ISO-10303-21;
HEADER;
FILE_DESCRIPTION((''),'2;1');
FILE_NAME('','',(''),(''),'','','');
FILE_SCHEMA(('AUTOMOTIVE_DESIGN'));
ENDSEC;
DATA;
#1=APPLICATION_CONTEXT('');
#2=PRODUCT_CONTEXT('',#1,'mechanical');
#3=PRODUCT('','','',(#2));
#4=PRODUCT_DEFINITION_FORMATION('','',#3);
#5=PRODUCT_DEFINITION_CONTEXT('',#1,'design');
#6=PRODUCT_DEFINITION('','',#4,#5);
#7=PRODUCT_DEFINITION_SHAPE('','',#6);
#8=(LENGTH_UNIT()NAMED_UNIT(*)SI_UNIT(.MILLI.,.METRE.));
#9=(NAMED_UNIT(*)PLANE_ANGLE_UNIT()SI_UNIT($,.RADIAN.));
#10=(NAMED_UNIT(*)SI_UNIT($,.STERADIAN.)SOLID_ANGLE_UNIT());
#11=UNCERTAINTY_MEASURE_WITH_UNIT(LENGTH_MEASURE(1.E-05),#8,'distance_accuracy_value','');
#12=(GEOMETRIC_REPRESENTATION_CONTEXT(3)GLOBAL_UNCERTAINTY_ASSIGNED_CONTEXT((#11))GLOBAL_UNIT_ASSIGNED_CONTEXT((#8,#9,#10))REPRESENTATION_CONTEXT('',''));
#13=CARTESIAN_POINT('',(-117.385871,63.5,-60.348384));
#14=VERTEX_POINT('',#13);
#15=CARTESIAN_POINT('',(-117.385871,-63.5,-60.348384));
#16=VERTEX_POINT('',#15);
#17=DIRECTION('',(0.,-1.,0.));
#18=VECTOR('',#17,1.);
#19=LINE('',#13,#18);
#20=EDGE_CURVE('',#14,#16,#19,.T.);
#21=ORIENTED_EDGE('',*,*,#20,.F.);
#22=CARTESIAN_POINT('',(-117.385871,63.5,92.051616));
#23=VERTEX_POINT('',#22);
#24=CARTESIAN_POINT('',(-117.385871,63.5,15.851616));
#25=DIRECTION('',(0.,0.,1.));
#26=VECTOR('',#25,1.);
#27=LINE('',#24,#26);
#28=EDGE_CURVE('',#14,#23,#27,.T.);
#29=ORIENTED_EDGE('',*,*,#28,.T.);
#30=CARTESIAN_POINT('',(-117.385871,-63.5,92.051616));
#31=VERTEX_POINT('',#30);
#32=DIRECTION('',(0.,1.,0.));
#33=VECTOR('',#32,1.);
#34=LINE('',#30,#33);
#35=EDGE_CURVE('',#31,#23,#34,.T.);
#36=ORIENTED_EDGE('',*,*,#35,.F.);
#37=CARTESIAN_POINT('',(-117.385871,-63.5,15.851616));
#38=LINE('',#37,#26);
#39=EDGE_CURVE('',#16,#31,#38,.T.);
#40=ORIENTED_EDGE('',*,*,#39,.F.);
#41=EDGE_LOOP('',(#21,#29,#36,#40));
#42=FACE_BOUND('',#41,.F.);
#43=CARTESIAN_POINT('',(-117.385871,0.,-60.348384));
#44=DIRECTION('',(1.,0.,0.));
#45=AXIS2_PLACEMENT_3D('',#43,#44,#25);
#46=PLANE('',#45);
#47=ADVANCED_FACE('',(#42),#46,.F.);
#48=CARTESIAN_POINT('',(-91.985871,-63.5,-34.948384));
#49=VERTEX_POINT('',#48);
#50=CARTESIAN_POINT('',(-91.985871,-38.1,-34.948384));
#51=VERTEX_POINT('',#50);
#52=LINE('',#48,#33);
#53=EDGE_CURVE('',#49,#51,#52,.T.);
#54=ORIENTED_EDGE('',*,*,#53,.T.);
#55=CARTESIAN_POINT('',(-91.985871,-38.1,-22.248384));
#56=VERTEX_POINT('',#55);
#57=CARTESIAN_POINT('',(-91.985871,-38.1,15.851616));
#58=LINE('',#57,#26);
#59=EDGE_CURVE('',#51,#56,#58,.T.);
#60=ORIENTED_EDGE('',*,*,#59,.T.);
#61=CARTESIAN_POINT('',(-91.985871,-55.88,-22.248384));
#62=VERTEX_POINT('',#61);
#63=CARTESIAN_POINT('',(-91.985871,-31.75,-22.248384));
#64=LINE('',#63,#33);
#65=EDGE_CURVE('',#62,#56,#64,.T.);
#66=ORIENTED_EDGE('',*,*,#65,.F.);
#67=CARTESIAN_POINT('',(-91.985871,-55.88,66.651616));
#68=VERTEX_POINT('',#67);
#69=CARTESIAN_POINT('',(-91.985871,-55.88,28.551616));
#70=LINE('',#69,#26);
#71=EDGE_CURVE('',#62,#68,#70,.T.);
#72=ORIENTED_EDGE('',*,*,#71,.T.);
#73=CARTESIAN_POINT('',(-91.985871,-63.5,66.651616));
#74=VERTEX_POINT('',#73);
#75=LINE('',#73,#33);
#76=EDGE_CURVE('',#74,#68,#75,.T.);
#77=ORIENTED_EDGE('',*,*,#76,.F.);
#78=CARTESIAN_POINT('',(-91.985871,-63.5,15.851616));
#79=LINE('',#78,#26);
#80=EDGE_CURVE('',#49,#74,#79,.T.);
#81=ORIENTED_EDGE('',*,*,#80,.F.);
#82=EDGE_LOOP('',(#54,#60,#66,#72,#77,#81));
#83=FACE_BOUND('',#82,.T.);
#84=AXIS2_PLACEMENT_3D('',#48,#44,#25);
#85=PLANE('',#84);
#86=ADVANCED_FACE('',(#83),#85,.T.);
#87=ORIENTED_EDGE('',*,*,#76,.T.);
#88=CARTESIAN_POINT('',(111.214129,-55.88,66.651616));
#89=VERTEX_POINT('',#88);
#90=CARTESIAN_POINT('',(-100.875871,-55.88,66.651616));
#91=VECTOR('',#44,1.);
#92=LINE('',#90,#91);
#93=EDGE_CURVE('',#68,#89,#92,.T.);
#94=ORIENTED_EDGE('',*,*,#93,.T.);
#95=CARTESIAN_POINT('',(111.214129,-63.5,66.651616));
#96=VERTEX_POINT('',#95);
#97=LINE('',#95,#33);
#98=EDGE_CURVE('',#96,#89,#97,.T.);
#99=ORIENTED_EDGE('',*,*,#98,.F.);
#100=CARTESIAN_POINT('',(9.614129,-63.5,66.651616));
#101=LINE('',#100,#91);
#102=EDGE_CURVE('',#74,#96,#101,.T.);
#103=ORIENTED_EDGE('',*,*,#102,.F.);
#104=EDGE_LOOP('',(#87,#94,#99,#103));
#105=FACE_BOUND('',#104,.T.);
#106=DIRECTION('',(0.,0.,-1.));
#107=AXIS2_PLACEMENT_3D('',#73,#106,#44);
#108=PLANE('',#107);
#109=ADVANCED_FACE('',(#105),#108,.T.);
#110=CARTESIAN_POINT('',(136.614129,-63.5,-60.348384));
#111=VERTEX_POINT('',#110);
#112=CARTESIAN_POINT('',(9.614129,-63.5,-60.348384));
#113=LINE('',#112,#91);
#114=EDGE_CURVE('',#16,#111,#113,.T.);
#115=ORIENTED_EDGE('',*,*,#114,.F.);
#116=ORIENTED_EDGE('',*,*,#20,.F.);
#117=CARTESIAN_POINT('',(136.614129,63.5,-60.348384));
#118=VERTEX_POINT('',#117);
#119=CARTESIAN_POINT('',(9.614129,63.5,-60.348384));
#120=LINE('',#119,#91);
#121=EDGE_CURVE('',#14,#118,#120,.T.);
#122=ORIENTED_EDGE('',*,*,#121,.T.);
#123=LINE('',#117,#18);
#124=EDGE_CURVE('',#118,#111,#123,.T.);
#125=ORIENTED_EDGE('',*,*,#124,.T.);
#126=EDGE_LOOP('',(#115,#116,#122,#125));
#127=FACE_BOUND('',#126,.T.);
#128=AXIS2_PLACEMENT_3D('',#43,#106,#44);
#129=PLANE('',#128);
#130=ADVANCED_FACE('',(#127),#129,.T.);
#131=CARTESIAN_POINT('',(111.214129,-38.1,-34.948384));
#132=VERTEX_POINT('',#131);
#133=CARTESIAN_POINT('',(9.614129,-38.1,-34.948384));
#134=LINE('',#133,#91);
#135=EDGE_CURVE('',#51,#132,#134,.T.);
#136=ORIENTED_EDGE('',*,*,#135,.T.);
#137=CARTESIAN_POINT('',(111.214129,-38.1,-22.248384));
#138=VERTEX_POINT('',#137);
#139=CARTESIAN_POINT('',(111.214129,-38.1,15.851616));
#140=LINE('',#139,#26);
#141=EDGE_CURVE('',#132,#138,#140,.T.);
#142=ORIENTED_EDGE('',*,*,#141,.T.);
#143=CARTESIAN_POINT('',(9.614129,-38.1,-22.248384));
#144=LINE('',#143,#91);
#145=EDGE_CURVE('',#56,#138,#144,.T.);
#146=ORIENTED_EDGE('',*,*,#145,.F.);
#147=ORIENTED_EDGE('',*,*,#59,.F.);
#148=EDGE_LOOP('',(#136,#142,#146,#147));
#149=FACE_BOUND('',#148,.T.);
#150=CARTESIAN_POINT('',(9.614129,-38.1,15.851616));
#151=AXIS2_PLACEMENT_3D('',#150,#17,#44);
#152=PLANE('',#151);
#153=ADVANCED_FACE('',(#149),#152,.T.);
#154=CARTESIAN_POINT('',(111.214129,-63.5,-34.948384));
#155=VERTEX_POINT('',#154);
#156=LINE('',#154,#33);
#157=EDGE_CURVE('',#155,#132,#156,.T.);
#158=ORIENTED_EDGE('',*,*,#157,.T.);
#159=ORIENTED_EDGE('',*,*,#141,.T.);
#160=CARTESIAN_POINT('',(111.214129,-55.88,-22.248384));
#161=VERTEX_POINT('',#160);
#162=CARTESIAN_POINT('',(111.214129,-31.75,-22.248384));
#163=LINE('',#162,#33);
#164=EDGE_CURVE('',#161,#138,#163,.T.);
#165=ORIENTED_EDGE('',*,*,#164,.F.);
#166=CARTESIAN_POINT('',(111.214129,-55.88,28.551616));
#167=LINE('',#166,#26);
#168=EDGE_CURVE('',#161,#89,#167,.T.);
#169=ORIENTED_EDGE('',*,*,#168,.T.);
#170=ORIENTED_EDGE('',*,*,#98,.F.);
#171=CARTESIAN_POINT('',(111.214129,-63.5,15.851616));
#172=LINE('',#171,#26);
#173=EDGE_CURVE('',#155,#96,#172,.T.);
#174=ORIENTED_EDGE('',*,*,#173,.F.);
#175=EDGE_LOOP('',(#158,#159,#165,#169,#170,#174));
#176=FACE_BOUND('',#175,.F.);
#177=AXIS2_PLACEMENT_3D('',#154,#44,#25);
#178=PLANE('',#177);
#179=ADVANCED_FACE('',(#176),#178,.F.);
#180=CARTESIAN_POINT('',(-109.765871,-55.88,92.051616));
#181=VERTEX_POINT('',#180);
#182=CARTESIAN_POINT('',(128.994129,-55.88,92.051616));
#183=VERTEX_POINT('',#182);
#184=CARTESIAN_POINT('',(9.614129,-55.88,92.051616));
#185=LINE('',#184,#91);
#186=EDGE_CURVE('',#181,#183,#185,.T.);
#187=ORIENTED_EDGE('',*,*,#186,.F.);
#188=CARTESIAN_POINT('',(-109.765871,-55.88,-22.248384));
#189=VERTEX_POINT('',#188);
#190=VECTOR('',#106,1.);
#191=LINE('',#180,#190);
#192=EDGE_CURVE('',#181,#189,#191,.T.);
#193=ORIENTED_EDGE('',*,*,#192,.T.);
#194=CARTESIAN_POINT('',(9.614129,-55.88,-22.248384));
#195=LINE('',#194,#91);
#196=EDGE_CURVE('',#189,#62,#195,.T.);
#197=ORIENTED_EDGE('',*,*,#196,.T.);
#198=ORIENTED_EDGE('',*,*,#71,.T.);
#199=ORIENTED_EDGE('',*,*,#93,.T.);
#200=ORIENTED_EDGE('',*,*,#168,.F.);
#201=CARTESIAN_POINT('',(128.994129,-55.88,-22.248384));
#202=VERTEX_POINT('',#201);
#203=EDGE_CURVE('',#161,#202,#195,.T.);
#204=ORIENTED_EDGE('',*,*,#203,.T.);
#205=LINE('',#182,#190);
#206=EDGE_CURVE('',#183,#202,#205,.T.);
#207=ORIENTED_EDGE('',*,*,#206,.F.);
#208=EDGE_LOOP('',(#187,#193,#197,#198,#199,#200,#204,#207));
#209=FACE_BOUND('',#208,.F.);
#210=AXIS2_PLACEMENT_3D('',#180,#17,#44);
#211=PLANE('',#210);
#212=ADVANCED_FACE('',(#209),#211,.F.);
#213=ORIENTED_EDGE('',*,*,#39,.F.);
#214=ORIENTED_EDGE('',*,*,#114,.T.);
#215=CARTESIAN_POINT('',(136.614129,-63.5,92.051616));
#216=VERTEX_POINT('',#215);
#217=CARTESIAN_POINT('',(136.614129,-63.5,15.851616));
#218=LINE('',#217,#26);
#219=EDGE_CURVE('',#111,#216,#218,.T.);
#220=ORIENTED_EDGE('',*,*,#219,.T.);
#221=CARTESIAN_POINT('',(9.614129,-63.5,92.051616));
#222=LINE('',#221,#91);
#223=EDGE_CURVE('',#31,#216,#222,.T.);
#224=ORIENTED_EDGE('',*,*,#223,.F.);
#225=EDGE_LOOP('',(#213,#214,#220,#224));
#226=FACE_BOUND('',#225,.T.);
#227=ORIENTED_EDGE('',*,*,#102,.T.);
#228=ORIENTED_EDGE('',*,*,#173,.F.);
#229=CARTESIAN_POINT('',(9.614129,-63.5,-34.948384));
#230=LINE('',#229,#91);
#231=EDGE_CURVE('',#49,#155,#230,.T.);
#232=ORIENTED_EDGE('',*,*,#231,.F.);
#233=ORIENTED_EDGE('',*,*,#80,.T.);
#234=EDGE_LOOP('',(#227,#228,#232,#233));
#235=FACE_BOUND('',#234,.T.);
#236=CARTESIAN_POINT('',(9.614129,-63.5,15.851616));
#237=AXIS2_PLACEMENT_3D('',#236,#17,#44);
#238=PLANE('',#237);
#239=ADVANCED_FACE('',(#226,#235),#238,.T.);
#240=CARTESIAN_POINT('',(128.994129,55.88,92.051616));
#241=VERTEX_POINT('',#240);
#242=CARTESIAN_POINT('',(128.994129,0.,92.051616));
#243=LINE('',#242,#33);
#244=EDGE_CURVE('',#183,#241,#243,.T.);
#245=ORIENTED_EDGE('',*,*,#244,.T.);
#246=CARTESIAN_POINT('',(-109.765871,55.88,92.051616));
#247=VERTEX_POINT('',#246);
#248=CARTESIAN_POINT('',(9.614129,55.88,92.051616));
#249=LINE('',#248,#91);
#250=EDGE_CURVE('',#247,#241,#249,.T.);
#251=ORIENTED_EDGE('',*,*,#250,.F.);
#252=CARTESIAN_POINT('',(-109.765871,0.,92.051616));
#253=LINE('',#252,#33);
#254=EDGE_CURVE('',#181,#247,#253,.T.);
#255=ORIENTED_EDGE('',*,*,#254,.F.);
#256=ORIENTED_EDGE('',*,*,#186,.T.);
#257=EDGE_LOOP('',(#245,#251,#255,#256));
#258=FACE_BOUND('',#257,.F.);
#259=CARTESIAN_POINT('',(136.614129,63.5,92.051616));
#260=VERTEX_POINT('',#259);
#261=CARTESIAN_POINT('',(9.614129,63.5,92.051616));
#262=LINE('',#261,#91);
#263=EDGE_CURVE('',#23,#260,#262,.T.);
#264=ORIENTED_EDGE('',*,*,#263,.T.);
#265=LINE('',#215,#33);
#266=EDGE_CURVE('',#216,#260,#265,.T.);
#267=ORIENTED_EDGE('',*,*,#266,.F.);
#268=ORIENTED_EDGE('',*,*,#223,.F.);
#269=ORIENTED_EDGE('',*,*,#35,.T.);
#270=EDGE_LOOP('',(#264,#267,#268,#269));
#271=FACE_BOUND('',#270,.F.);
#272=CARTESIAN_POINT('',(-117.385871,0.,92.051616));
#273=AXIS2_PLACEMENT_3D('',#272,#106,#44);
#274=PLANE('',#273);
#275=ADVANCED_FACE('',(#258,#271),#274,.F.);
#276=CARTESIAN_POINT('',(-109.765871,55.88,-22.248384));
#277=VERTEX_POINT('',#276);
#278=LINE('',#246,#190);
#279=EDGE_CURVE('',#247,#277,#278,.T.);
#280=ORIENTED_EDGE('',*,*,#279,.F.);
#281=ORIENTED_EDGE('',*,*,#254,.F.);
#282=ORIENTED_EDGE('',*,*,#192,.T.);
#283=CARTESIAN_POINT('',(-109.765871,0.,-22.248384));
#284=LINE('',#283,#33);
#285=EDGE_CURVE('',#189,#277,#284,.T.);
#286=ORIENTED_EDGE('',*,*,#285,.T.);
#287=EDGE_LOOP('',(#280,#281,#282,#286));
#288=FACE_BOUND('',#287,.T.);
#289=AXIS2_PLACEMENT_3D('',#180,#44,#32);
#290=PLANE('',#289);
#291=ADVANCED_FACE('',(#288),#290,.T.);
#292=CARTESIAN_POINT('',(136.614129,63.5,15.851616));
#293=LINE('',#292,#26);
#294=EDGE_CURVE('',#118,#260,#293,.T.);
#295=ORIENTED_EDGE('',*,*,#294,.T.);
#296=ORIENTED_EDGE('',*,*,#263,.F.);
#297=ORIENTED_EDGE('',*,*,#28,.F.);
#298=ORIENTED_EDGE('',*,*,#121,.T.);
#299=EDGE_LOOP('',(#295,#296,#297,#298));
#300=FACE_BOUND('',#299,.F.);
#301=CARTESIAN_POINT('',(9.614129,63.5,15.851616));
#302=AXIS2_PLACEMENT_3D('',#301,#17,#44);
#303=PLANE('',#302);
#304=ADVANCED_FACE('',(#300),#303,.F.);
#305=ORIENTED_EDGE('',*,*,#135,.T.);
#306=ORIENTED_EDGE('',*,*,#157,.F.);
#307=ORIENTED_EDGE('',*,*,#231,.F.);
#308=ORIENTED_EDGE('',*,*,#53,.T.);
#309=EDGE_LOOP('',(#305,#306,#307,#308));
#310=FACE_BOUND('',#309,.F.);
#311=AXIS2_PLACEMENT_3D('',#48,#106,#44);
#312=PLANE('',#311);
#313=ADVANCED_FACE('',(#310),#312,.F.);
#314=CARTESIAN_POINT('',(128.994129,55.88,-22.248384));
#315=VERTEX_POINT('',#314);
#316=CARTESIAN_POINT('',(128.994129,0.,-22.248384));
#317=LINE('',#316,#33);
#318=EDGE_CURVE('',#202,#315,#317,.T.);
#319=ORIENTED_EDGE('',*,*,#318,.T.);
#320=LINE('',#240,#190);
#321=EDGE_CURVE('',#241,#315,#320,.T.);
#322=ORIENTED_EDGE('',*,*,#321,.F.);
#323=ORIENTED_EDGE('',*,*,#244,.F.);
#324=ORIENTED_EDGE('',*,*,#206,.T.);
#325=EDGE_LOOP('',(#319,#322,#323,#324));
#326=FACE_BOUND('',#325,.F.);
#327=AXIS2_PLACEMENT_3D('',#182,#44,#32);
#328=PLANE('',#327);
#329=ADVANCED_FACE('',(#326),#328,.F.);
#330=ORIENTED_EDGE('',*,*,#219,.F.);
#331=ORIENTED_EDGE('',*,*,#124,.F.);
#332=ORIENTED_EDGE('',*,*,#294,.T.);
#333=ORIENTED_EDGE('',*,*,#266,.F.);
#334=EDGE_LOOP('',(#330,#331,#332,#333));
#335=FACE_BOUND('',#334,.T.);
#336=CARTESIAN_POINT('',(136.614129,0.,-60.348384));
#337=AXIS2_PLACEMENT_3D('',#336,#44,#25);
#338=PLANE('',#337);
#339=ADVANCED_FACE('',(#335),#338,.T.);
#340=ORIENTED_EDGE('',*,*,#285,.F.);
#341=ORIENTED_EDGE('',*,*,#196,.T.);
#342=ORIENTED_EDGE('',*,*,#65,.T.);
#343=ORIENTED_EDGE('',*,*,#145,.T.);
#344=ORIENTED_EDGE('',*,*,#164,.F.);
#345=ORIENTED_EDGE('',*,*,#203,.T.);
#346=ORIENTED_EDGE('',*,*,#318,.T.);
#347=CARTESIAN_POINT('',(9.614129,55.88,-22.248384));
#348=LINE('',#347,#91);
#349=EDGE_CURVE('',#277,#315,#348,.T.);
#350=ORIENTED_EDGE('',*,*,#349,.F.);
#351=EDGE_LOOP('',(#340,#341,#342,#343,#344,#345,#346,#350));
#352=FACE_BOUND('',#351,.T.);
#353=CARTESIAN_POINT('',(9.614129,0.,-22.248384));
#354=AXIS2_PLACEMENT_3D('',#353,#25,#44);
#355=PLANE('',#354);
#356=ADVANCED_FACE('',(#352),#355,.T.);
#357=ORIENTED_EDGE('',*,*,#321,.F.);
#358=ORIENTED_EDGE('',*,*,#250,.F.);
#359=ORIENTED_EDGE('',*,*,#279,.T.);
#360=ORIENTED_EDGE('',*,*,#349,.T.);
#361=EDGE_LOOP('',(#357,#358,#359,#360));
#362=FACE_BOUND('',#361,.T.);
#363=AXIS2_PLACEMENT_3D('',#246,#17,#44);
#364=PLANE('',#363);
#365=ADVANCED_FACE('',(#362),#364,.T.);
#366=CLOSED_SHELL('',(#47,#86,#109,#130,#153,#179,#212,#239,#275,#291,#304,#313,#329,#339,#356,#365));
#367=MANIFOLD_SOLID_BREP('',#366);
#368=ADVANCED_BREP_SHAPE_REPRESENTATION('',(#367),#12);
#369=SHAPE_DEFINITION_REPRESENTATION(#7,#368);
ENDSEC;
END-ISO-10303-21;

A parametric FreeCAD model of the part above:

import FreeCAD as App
import Part
import Sketcher

V = App.Vector
Q = App.Units.Quantity


def add_polygon(sketch, points):
    """Adds a closed chain of lines whose ends are joined by coincident constraints."""
    first, n = sketch.GeometryCount, len(points)
    for a, b in zip(points, points[1:] + points[:1]):
        sketch.addGeometry(Part.LineSegment(App.Vector(*a, 0), App.Vector(*b, 0)), False)
    for i in range(n):
        sketch.addConstraint(Sketcher.Constraint("Coincident", first + i, 2, first + (i + 1) % n, 1))

doc = App.newDocument("Part")
params = doc.addObject("Spreadsheet::Sheet", "Params")
for row, (alias, value) in enumerate([
    ("sketch1_width", "10 in"),
    ("sketch1_height", "6 in"),
    ("pad1_length", "5 in"),
    ("sketch2_width", "9.4 in"),
    ("sketch2_height", "4.4 in"),
    ("pocket1_length", "4.5 in"),
    ("sketch3_width", "8 in"),
    ("sketch3_height", "4 in"),
    ("pocket2_length", "1 in"),
], start=1):
    params.set(f"A{row}", alias)
    params.set(f"B{row}", "=" + value)
    params.setAlias(f"B{row}", alias)

body = doc.addObject("PartDesign::Body", "Body")

# Sketch on XZ plane
sketch1 = body.newObject("Sketcher::SketchObject", "Sketch")
sketch1.AttachmentSupport = (doc.getObject("XZ_Plane"), [""])
sketch1.MapMode = "FlatFace"
add_polygon(sketch1, [(-117, 92), (-117, -60), (137, -60), (137, 92)])  # lines 0-3
sketch1.addConstraint(Sketcher.Constraint("Vertical", 0))
sketch1.addConstraint(Sketcher.Constraint("Horizontal", 1))
sketch1.addConstraint(Sketcher.Constraint("Vertical", 2))
sketch1.addConstraint(Sketcher.Constraint("Horizontal", 3))
sketch1.addConstraint(Sketcher.Constraint("DistanceX", 1, 1, 1, 2, Q("10 in")))
sketch1.addConstraint(Sketcher.Constraint("DistanceY", 0, 2, 0, 1, Q("6 in")))
sketch1.addConstraint(Sketcher.Constraint("DistanceX", 0, 2, -1, 1, 117.385871))
sketch1.addConstraint(Sketcher.Constraint("DistanceY", 0, 2, -1, 1, 60.348384))
sketch1.setExpression("Constraints[8]", "Params.sketch1_width")
sketch1.setExpression("Constraints[9]", "Params.sketch1_height")
pad1 = body.newObject("PartDesign::Pad", "Pad")
pad1.Profile = sketch1
pad1.setExpression("Length", "Params.pad1_length")
pad1.Midplane = True

# Sketch on XY plane
sketch2 = body.newObject("Sketcher::SketchObject", "Sketch001")
sketch2.AttachmentSupport = (doc.getObject("XY_Plane"), [""])
sketch2.MapMode = "FlatFace"
sketch2.AttachmentOffset = App.Placement(V(0, 0, 92.051616), App.Rotation())
add_polygon(sketch2, [(-110, 56), (-110, -56), (129, -56), (129, 56)])  # lines 0-3
sketch2.addConstraint(Sketcher.Constraint("Vertical", 0))
sketch2.addConstraint(Sketcher.Constraint("Horizontal", 1))
sketch2.addConstraint(Sketcher.Constraint("Vertical", 2))
sketch2.addConstraint(Sketcher.Constraint("Horizontal", 3))
sketch2.addConstraint(Sketcher.Constraint("DistanceX", 1, 1, 1, 2, Q("9.4 in")))
sketch2.addConstraint(Sketcher.Constraint("DistanceY", 0, 2, 0, 1, Q("4.4 in")))
sketch2.addConstraint(Sketcher.Constraint("DistanceY", 0, 2, -1, 1, Q("2.2 in")))
sketch2.addConstraint(Sketcher.Constraint("DistanceX", 0, 2, -1, 1, 109.765871))
sketch2.setExpression("Constraints[8]", "Params.sketch2_width")
sketch2.setExpression("Constraints[9]", "Params.sketch2_height")
pocket1 = body.newObject("PartDesign::Pocket", "Pocket")
pocket1.Profile = sketch2
pocket1.setExpression("Length", "Params.pocket1_length")

# Sketch on XZ plane
sketch3 = body.newObject("Sketcher::SketchObject", "Sketch002")
sketch3.AttachmentSupport = (doc.getObject("XZ_Plane"), [""])
sketch3.MapMode = "FlatFace"
sketch3.AttachmentOffset = App.Placement(V(0, 0, 2.5 * 25.4), App.Rotation())
add_polygon(sketch3, [(-92, 67), (-92, -35), (111, -35), (111, 67)])  # lines 0-3
sketch3.addConstraint(Sketcher.Constraint("Vertical", 0))
sketch3.addConstraint(Sketcher.Constraint("Horizontal", 1))
sketch3.addConstraint(Sketcher.Constraint("Vertical", 2))
sketch3.addConstraint(Sketcher.Constraint("Horizontal", 3))
sketch3.addConstraint(Sketcher.Constraint("DistanceX", 1, 1, 1, 2, Q("8 in")))
sketch3.addConstraint(Sketcher.Constraint("DistanceY", 0, 2, 0, 1, Q("4 in")))
sketch3.addConstraint(Sketcher.Constraint("DistanceX", 0, 2, -1, 1, 91.985871))
sketch3.addConstraint(Sketcher.Constraint("DistanceY", 0, 2, -1, 1, 34.948384))
sketch3.setExpression("Constraints[8]", "Params.sketch3_width")
sketch3.setExpression("Constraints[9]", "Params.sketch3_height")
pocket2 = body.newObject("PartDesign::Pocket", "Pocket001")
pocket2.Profile = sketch3
pocket2.setExpression("Length", "Params.pocket2_length")

doc.recompute()
